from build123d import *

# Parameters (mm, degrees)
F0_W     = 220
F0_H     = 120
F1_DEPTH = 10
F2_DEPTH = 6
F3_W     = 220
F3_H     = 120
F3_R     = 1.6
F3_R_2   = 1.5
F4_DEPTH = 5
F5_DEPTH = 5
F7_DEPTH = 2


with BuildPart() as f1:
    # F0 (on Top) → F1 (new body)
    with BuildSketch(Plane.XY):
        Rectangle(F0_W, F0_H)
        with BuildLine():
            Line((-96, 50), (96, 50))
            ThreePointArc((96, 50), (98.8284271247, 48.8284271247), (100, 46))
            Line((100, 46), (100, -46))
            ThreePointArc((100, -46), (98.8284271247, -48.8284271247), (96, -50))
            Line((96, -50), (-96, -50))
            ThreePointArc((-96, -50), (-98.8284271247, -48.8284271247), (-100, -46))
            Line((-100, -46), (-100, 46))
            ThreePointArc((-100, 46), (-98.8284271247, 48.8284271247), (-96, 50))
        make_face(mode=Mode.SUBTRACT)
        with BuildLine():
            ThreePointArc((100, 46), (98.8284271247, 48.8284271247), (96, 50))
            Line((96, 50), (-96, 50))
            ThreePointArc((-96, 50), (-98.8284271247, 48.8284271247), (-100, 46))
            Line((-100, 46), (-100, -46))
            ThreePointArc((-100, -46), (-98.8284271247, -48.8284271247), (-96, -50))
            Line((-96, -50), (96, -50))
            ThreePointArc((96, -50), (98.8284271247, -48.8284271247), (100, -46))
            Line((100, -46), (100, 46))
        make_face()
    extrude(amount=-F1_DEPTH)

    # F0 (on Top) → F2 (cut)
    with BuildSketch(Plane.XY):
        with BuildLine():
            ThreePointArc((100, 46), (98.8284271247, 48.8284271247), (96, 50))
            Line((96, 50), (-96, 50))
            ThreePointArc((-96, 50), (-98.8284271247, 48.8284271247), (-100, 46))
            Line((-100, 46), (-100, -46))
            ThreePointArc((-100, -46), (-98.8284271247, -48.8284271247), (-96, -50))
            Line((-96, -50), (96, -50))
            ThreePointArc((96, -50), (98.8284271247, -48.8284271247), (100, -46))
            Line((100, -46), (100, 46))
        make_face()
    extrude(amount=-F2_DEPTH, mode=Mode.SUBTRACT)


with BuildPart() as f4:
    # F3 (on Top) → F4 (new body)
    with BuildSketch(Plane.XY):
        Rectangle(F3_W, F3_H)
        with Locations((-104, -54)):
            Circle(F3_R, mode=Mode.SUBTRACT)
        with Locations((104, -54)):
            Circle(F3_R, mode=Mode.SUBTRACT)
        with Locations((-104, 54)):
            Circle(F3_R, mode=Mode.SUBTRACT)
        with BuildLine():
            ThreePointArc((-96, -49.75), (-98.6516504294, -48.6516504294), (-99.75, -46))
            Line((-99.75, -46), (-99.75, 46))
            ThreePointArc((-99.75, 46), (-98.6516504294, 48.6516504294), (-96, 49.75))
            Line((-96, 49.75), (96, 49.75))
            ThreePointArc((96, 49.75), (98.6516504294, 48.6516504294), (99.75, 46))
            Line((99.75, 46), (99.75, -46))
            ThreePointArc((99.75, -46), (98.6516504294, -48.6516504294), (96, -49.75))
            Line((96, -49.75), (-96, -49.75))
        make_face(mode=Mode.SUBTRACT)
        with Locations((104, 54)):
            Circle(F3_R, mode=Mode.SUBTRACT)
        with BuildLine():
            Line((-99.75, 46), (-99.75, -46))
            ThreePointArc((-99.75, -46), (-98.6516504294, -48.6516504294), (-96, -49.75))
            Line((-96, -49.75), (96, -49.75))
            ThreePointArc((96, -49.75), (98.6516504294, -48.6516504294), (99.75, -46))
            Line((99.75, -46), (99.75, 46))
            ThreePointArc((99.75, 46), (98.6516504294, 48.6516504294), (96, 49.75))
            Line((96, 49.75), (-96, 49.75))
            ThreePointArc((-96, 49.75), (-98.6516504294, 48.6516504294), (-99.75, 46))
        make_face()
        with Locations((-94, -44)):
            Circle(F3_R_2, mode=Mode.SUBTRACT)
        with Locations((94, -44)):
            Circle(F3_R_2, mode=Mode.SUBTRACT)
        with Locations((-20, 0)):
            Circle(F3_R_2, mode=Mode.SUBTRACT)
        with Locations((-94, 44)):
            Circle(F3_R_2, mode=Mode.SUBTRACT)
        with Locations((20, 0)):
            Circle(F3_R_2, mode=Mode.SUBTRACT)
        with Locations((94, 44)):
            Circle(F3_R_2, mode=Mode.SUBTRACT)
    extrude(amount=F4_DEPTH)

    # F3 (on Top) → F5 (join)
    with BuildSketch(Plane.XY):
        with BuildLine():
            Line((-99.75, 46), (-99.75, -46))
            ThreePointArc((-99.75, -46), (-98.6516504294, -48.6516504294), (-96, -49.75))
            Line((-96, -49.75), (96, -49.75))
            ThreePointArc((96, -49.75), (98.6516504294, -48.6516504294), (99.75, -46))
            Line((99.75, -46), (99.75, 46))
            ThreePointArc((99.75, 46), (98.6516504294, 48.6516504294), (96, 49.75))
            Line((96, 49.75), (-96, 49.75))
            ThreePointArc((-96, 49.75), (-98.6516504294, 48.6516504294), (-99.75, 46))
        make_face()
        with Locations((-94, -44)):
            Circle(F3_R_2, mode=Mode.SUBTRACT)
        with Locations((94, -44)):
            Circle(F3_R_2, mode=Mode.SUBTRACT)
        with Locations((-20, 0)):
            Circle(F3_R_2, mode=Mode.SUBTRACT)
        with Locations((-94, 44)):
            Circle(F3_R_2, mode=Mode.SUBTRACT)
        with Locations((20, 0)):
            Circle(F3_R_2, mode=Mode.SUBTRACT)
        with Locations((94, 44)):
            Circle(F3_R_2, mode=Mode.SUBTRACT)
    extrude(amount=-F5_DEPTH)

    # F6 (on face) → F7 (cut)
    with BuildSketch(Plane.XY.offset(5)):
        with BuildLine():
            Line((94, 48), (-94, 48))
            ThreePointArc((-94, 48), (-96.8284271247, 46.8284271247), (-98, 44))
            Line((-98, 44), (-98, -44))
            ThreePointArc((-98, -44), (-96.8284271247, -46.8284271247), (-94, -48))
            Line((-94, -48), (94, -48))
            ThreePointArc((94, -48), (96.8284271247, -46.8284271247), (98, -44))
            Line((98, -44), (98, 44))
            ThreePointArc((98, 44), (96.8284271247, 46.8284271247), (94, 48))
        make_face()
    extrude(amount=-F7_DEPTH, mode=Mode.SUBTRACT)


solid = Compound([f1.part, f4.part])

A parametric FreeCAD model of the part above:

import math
import FreeCAD as App
import Part
import Sketcher
from FreeCAD import Vector

doc = App.newDocument("Part")
body = doc.addObject("PartDesign::Body", "Body")

# Sketch on XY plane
sketch1 = doc.addObject("Sketcher::SketchObject", "Sketch")
body.addObject(sketch1)
sketch1.AttachmentSupport = (doc.XY_Plane, [""])
sketch1.MapMode = "FlatFace"
sketch1.addGeometry(Part.LineSegment(Vector(-110, 60, 0), Vector(-110, -60, 0)), False)
sketch1.addGeometry(Part.LineSegment(Vector(-110, -60, 0), Vector(110, -60, 0)), False)
sketch1.addGeometry(Part.LineSegment(Vector(110, -60, 0), Vector(110, 60, 0)), False)
sketch1.addGeometry(Part.LineSegment(Vector(110, 60, 0), Vector(-110, 60, 0)), False)
sketch1.addConstraint(Sketcher.Constraint("Coincident", 0, 2, 1, 1))
sketch1.addConstraint(Sketcher.Constraint("Coincident", 1, 2, 2, 1))
sketch1.addConstraint(Sketcher.Constraint("Coincident", 2, 2, 3, 1))
sketch1.addConstraint(Sketcher.Constraint("Coincident", 3, 2, 0, 1))
sketch1.addConstraint(Sketcher.Constraint("Vertical", 0))
sketch1.addConstraint(Sketcher.Constraint("Horizontal", 1))
sketch1.addConstraint(Sketcher.Constraint("Vertical", 2))
sketch1.addConstraint(Sketcher.Constraint("Horizontal", 3))
sketch1.addConstraint(Sketcher.Constraint("Symmetric", 0, 2, 2, 2, -1, 1))
sketch1.addConstraint(Sketcher.Constraint("DistanceX", 1, 1, 1, 2, 220.0))
sketch1.addConstraint(Sketcher.Constraint("DistanceY", 0, 2, 0, 1, 120.0))
pad1 = doc.addObject("PartDesign::Pad", "Pad")
body.addObject(pad1)
pad1.Profile = sketch1
pad1.Length = 10
pad1.Reversed = True

# Sketch on XY plane
sketch2 = doc.addObject("Sketcher::SketchObject", "Sketch001")
body.addObject(sketch2)
sketch2.AttachmentSupport = (doc.XY_Plane, [""])
sketch2.MapMode = "FlatFace"
sketch2.addGeometry(Part.ArcOfCircle(Part.Circle(Vector(96, 46, 0), Vector(0, 0, 1), 4), math.radians(0), math.radians(90)), False)
sketch2.addGeometry(Part.LineSegment(Vector(96, 50, 0), Vector(-96, 50, 0)), False)
sketch2.addGeometry(Part.ArcOfCircle(Part.Circle(Vector(-96, 46, 0), Vector(0, 0, 1), 4), math.radians(90), math.radians(180)), False)
sketch2.addGeometry(Part.LineSegment(Vector(-100, 46, 0), Vector(-100, -46, 0)), False)
sketch2.addGeometry(Part.ArcOfCircle(Part.Circle(Vector(-96, -46, 0), Vector(0, 0, 1), 4), math.radians(180), math.radians(270)), False)
sketch2.addGeometry(Part.LineSegment(Vector(-96, -50, 0), Vector(96, -50, 0)), False)
sketch2.addGeometry(Part.ArcOfCircle(Part.Circle(Vector(96, -46, 0), Vector(0, 0, 1), 4), math.radians(-90), math.radians(0)), False)
sketch2.addGeometry(Part.LineSegment(Vector(100, -46, 0), Vector(100, 46, 0)), False)
sketch2.addConstraint(Sketcher.Constraint("Tangent", 0, 2, 1, 1))
sketch2.addConstraint(Sketcher.Constraint("Tangent", 1, 2, 2, 1))
sketch2.addConstraint(Sketcher.Constraint("Tangent", 2, 2, 3, 1))
sketch2.addConstraint(Sketcher.Constraint("Tangent", 3, 2, 4, 1))
sketch2.addConstraint(Sketcher.Constraint("Tangent", 4, 2, 5, 1))
sketch2.addConstraint(Sketcher.Constraint("Tangent", 5, 2, 6, 1))
sketch2.addConstraint(Sketcher.Constraint("Tangent", 6, 2, 7, 1))
sketch2.addConstraint(Sketcher.Constraint("Tangent", 7, 2, 0, 1))
sketch2.addConstraint(Sketcher.Constraint("Horizontal", 1))
sketch2.addConstraint(Sketcher.Constraint("Vertical", 3))
sketch2.addConstraint(Sketcher.Constraint("Horizontal", 5))
sketch2.addConstraint(Sketcher.Constraint("Vertical", 7))
sketch2.addConstraint(Sketcher.Constraint("Equal", 0, 2))
sketch2.addConstraint(Sketcher.Constraint("Equal", 2, 4))
sketch2.addConstraint(Sketcher.Constraint("Equal", 4, 6))
sketch2.addConstraint(Sketcher.Constraint("Symmetric", 0, 3, 4, 3, -1, 1))
sketch2.addConstraint(Sketcher.Constraint("Radius", 0, 4.0))
sketch2.addConstraint(Sketcher.Constraint("DistanceX", 1, 2, 1, 1, 192.0))
sketch2.addConstraint(Sketcher.Constraint("DistanceY", 3, 2, 3, 1, 92.0))
pocket1 = doc.addObject("PartDesign::Pocket", "Pocket")
body.addObject(pocket1)
pocket1.Profile = sketch2
pocket1.Length = 6
body2 = doc.addObject("PartDesign::Body", "Body001")

# Sketch on XY plane
sketch3 = doc.addObject("Sketcher::SketchObject", "Sketch002")
body2.addObject(sketch3)
sketch3.AttachmentSupport = (doc.getObject("XY_Plane001"), [""])
sketch3.MapMode = "FlatFace"
sketch3.addGeometry(Part.LineSegment(Vector(-110, 60, 0), Vector(-110, -60, 0)), False)
sketch3.addGeometry(Part.LineSegment(Vector(-110, -60, 0), Vector(110, -60, 0)), False)
sketch3.addGeometry(Part.LineSegment(Vector(110, -60, 0), Vector(110, 60, 0)), False)
sketch3.addGeometry(Part.LineSegment(Vector(110, 60, 0), Vector(-110, 60, 0)), False)
sketch3.addGeometry(Part.Circle(Vector(-104, -54, 0), Vector(0, 0, 1), 1.6), False)
sketch3.addGeometry(Part.Circle(Vector(-94, -44, 0), Vector(0, 0, 1), 1.5), False)
sketch3.addGeometry(Part.Circle(Vector(104, -54, 0), Vector(0, 0, 1), 1.6), False)
sketch3.addGeometry(Part.Circle(Vector(94, -44, 0), Vector(0, 0, 1), 1.5), False)
sketch3.addGeometry(Part.Circle(Vector(-20, 0, 0), Vector(0, 0, 1), 1.5), False)
sketch3.addGeometry(Part.Circle(Vector(-94, 44, 0), Vector(0, 0, 1), 1.5), False)
sketch3.addGeometry(Part.Circle(Vector(-104, 54, 0), Vector(0, 0, 1), 1.6), False)
sketch3.addGeometry(Part.Circle(Vector(20, 0, 0), Vector(0, 0, 1), 1.5), False)
sketch3.addGeometry(Part.Circle(Vector(94, 44, 0), Vector(0, 0, 1), 1.5), False)
sketch3.addGeometry(Part.Circle(Vector(104, 54, 0), Vector(0, 0, 1), 1.6), False)
sketch3.addConstraint(Sketcher.Constraint("Coincident", 0, 2, 1, 1))
sketch3.addConstraint(Sketcher.Constraint("Coincident", 1, 2, 2, 1))
sketch3.addConstraint(Sketcher.Constraint("Coincident", 2, 2, 3, 1))
sketch3.addConstraint(Sketcher.Constraint("Coincident", 3, 2, 0, 1))
sketch3.addConstraint(Sketcher.Constraint("Vertical", 0))
sketch3.addConstraint(Sketcher.Constraint("Horizontal", 1))
sketch3.addConstraint(Sketcher.Constraint("Vertical", 2))
sketch3.addConstraint(Sketcher.Constraint("Horizontal", 3))
sketch3.addConstraint(Sketcher.Constraint("Equal", 4, 6))
sketch3.addConstraint(Sketcher.Constraint("Equal", 5, 7))
sketch3.addConstraint(Sketcher.Constraint("Equal", 7, 8))
sketch3.addConstraint(Sketcher.Constraint("Equal", 8, 9))
sketch3.addConstraint(Sketcher.Constraint("Equal", 6, 10))
sketch3.addConstraint(Sketcher.Constraint("Equal", 9, 11))
sketch3.addConstraint(Sketcher.Constraint("Equal", 11, 12))
sketch3.addConstraint(Sketcher.Constraint("Equal", 10, 13))
sketch3.addConstraint(Sketcher.Constraint("Symmetric", 7, 3, 9, 3, -1, 1))
sketch3.addConstraint(Sketcher.Constraint("Symmetric", 6, 3, 10, 3, -1, 1))
sketch3.addConstraint(Sketcher.Constraint("Symmetric", 8, 3, 11, 3, -1, 1))
sketch3.addConstraint(Sketcher.Constraint("Symmetric", 5, 3, 12, 3, -1, 1))
sketch3.addConstraint(Sketcher.Constraint("Symmetric", 4, 3, 13, 3, -1, 1))
sketch3.addConstraint(Sketcher.Constraint("Symmetric", 0, 2, 2, 2, -1, 1))
sketch3.addConstraint(Sketcher.Constraint("Symmetric", 4, 3, 6, 3, -2))
sketch3.addConstraint(Sketcher.Constraint("Symmetric", 5, 3, 7, 3, -2))
sketch3.addConstraint(Sketcher.Constraint("PointOnObject", 8, 3, -1))
sketch3.addConstraint(Sketcher.Constraint("Diameter", 5, 3.0))
sketch3.addConstraint(Sketcher.Constraint("Diameter", 4, 3.2))
sketch3.addConstraint(Sketcher.Constraint("DistanceX", 1, 1, 1, 2, 220.0))
sketch3.addConstraint(Sketcher.Constraint("DistanceY", 0, 2, 0, 1, 120.0))
sketch3.addConstraint(Sketcher.Constraint("DistanceX", 4, 3, -1, 1, 104.0))
sketch3.addConstraint(Sketcher.Constraint("DistanceY", 4, 3, -1, 1, 54.0))
sketch3.addConstraint(Sketcher.Constraint("DistanceX", 5, 3, -1, 1, 94.0))
sketch3.addConstraint(Sketcher.Constraint("DistanceY", 5, 3, -1, 1, 44.0))
sketch3.addConstraint(Sketcher.Constraint("DistanceX", 8, 3, -1, 1, 20.0))
pad2 = doc.addObject("PartDesign::Pad", "Pad001")
body2.addObject(pad2)
pad2.Profile = sketch3
pad2.Length = 5

# Sketch on XY plane
sketch4 = doc.addObject("Sketcher::SketchObject", "Sketch003")
body2.addObject(sketch4)
sketch4.AttachmentSupport = (doc.getObject("XY_Plane001"), [""])
sketch4.MapMode = "FlatFace"
sketch4.addGeometry(Part.LineSegment(Vector(-99.8, 46, 0), Vector(-99.8, -46, 0)), False)
sketch4.addGeometry(Part.ArcOfCircle(Part.Circle(Vector(-96, -46, 0), Vector(0, 0, 1), 3.8), math.radians(180), math.radians(270)), False)
sketch4.addGeometry(Part.LineSegment(Vector(-96, -49.8, 0), Vector(96, -49.8, 0)), False)
sketch4.addGeometry(Part.ArcOfCircle(Part.Circle(Vector(96, -46, 0), Vector(0, 0, 1), 3.8), math.radians(-90), math.radians(0)), False)
sketch4.addGeometry(Part.LineSegment(Vector(99.8, -46, 0), Vector(99.8, 46, 0)), False)
sketch4.addGeometry(Part.ArcOfCircle(Part.Circle(Vector(96, 46, 0), Vector(0, 0, 1), 3.8), math.radians(0), math.radians(90)), False)
sketch4.addGeometry(Part.LineSegment(Vector(96, 49.8, 0), Vector(-96, 49.8, 0)), False)
sketch4.addGeometry(Part.ArcOfCircle(Part.Circle(Vector(-96, 46, 0), Vector(0, 0, 1), 3.8), math.radians(90), math.radians(180)), False)
sketch4.addGeometry(Part.Circle(Vector(-94, -44, 0), Vector(0, 0, 1), 1.5), False)
sketch4.addGeometry(Part.Circle(Vector(94, -44, 0), Vector(0, 0, 1), 1.5), False)
sketch4.addGeometry(Part.Circle(Vector(-20, 0, 0), Vector(0, 0, 1), 1.5), False)
sketch4.addGeometry(Part.Circle(Vector(-94, 44, 0), Vector(0, 0, 1), 1.5), False)
sketch4.addGeometry(Part.Circle(Vector(20, 0, 0), Vector(0, 0, 1), 1.5), False)
sketch4.addGeometry(Part.Circle(Vector(94, 44, 0), Vector(0, 0, 1), 1.5), False)
sketch4.addConstraint(Sketcher.Constraint("Tangent", 0, 2, 1, 1))
sketch4.addConstraint(Sketcher.Constraint("Tangent", 1, 2, 2, 1))
sketch4.addConstraint(Sketcher.Constraint("Tangent", 2, 2, 3, 1))
sketch4.addConstraint(Sketcher.Constraint("Tangent", 3, 2, 4, 1))
sketch4.addConstraint(Sketcher.Constraint("Tangent", 4, 2, 5, 1))
sketch4.addConstraint(Sketcher.Constraint("Tangent", 5, 2, 6, 1))
sketch4.addConstraint(Sketcher.Constraint("Tangent", 6, 2, 7, 1))
sketch4.addConstraint(Sketcher.Constraint("Tangent", 7, 2, 0, 1))
sketch4.addConstraint(Sketcher.Constraint("Vertical", 0))
sketch4.addConstraint(Sketcher.Constraint("Horizontal", 2))
sketch4.addConstraint(Sketcher.Constraint("Vertical", 4))
sketch4.addConstraint(Sketcher.Constraint("Horizontal", 6))
sketch4.addConstraint(Sketcher.Constraint("Equal", 1, 3))
sketch4.addConstraint(Sketcher.Constraint("Equal", 3, 5))
sketch4.addConstraint(Sketcher.Constraint("Equal", 5, 7))
sketch4.addConstraint(Sketcher.Constraint("Equal", 8, 9))
sketch4.addConstraint(Sketcher.Constraint("Equal", 9, 10))
sketch4.addConstraint(Sketcher.Constraint("Equal", 10, 11))
sketch4.addConstraint(Sketcher.Constraint("Equal", 11, 12))
sketch4.addConstraint(Sketcher.Constraint("Equal", 12, 13))
sketch4.addConstraint(Sketcher.Constraint("Symmetric", 1, 3, 5, 3, -1, 1))
sketch4.addConstraint(Sketcher.Constraint("Symmetric", 9, 3, 11, 3, -1, 1))
sketch4.addConstraint(Sketcher.Constraint("Symmetric", 10, 3, 12, 3, -1, 1))
sketch4.addConstraint(Sketcher.Constraint("Symmetric", 8, 3, 13, 3, -1, 1))
sketch4.addConstraint(Sketcher.Constraint("Symmetric", 8, 3, 9, 3, -2))
sketch4.addConstraint(Sketcher.Constraint("PointOnObject", 10, 3, -1))
sketch4.addConstraint(Sketcher.Constraint("Diameter", 8, 3.0))
sketch4.addConstraint(Sketcher.Constraint("DistanceX", 2, 1, 2, 2, 192.0))
sketch4.addConstraint(Sketcher.Constraint("DistanceY", 0, 2, 0, 1, 92.0))
sketch4.addConstraint(Sketcher.Constraint("Radius", 1, 3.75))
sketch4.addConstraint(Sketcher.Constraint("DistanceX", 8, 3, -1, 1, 94.0))
sketch4.addConstraint(Sketcher.Constraint("DistanceY", 8, 3, -1, 1, 44.0))
sketch4.addConstraint(Sketcher.Constraint("DistanceX", 10, 3, -1, 1, 20.0))
pad3 = doc.addObject("PartDesign::Pad", "Pad002")
body2.addObject(pad3)
pad3.Profile = sketch4
pad3.Length = 5
pad3.Reversed = True

# Sketch on XY plane
sketch5 = doc.addObject("Sketcher::SketchObject", "Sketch004")
body2.addObject(sketch5)
sketch5.AttachmentSupport = (doc.getObject("XY_Plane001"), [""])
sketch5.MapMode = "FlatFace"
sketch5.AttachmentOffset = App.Placement(Vector(0, 0, 5), App.Rotation())
sketch5.addGeometry(Part.LineSegment(Vector(94, 48, 0), Vector(-94, 48, 0)), False)
sketch5.addGeometry(Part.ArcOfCircle(Part.Circle(Vector(-94, 44, 0), Vector(0, 0, 1), 4), math.radians(90), math.radians(180)), False)
sketch5.addGeometry(Part.LineSegment(Vector(-98, 44, 0), Vector(-98, -44, 0)), False)
sketch5.addGeometry(Part.ArcOfCircle(Part.Circle(Vector(-94, -44, 0), Vector(0, 0, 1), 4), math.radians(180), math.radians(270)), False)
sketch5.addGeometry(Part.LineSegment(Vector(-94, -48, 0), Vector(94, -48, 0)), False)
sketch5.addGeometry(Part.ArcOfCircle(Part.Circle(Vector(94, -44, 0), Vector(0, 0, 1), 4), math.radians(-90), math.radians(0)), False)
sketch5.addGeometry(Part.LineSegment(Vector(98, -44, 0), Vector(98, 44, 0)), False)
sketch5.addGeometry(Part.ArcOfCircle(Part.Circle(Vector(94, 44, 0), Vector(0, 0, 1), 4), math.radians(0), math.radians(90)), False)
sketch5.addConstraint(Sketcher.Constraint("Tangent", 0, 2, 1, 1))
sketch5.addConstraint(Sketcher.Constraint("Tangent", 1, 2, 2, 1))
sketch5.addConstraint(Sketcher.Constraint("Tangent", 2, 2, 3, 1))
sketch5.addConstraint(Sketcher.Constraint("Tangent", 3, 2, 4, 1))
sketch5.addConstraint(Sketcher.Constraint("Tangent", 4, 2, 5, 1))
sketch5.addConstraint(Sketcher.Constraint("Tangent", 5, 2, 6, 1))
sketch5.addConstraint(Sketcher.Constraint("Tangent", 6, 2, 7, 1))
sketch5.addConstraint(Sketcher.Constraint("Tangent", 7, 2, 0, 1))
sketch5.addConstraint(Sketcher.Constraint("Horizontal", 0))
sketch5.addConstraint(Sketcher.Constraint("Vertical", 2))
sketch5.addConstraint(Sketcher.Constraint("Horizontal", 4))
sketch5.addConstraint(Sketcher.Constraint("Vertical", 6))
sketch5.addConstraint(Sketcher.Constraint("Equal", 1, 3))
sketch5.addConstraint(Sketcher.Constraint("Equal", 3, 5))
sketch5.addConstraint(Sketcher.Constraint("Equal", 5, 7))
sketch5.addConstraint(Sketcher.Constraint("Symmetric", 1, 3, 5, 3, -1, 1))
sketch5.addConstraint(Sketcher.Constraint("Radius", 1, 4.0))
sketch5.addConstraint(Sketcher.Constraint("DistanceX", 0, 2, 0, 1, 188.0))
sketch5.addConstraint(Sketcher.Constraint("DistanceY", 2, 2, 2, 1, 88.0))
pocket2 = doc.addObject("PartDesign::Pocket", "Pocket001")
body2.addObject(pocket2)
pocket2.Profile = sketch5
pocket2.Length = 2

doc.recompute()
